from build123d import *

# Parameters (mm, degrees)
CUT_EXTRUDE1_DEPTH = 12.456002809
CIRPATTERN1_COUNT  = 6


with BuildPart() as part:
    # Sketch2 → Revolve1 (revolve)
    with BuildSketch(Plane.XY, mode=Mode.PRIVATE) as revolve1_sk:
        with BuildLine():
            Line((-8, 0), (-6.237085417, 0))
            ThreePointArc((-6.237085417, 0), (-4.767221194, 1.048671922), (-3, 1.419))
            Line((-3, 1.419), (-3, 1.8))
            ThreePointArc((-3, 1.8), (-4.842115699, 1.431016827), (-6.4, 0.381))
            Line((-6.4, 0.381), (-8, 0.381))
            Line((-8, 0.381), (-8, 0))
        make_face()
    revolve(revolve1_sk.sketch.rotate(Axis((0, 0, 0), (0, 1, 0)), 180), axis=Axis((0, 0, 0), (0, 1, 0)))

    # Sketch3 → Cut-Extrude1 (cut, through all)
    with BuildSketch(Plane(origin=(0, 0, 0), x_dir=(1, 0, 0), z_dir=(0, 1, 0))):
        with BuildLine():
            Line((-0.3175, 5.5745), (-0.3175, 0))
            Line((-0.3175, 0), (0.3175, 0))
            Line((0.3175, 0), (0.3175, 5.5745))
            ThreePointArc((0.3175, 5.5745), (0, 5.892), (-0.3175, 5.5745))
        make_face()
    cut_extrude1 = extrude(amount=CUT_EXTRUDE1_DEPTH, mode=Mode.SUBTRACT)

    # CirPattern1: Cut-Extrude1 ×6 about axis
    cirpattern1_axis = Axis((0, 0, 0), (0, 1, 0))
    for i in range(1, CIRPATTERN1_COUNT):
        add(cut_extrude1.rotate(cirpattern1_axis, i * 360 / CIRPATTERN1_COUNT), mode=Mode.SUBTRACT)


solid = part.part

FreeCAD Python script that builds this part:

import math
import FreeCAD as App
import Part
import Sketcher
Q = App.Units.Quantity

doc = App.newDocument("Part")
body = doc.addObject("PartDesign::Body", "Body")

# Sketch on XY plane
sketch1 = doc.addObject("Sketcher::SketchObject", "Sketch")
body.addObject(sketch1)
sketch1.AttachmentSupport = (doc.XY_Plane, [""])
sketch1.MapMode = "FlatFace"
sketch1.addGeometry(Part.LineSegment(App.Vector(-8, 0, 0), App.Vector(-6.24, 0, 0)), False)
sketch1.addGeometry(Part.ArcOfCircle(Part.Circle(App.Vector(-3, -2.98, 0), App.Vector(0, 0, 1), 4.4), math.radians(90), math.radians(137)), False)
sketch1.addGeometry(Part.LineSegment(App.Vector(-3, 1.42, 0), App.Vector(-3, 1.8, 0)), False)
sketch1.addGeometry(Part.ArcOfCircle(Part.Circle(App.Vector(-3, -2.98, 0), App.Vector(0, 0, 1), 4.78), math.radians(90), math.radians(135)), False)
sketch1.addGeometry(Part.LineSegment(App.Vector(-6.4, 0.38, 0), App.Vector(-8, 0.38, 0)), False)
sketch1.addGeometry(Part.LineSegment(App.Vector(-8, 0.38, 0), App.Vector(-8, 0, 0)), False)
sketch1.addConstraint(Sketcher.Constraint("Coincident", 0, 2, 1, 2))
sketch1.addConstraint(Sketcher.Constraint("Coincident", 1, 1, 2, 1))
sketch1.addConstraint(Sketcher.Constraint("Coincident", 2, 2, 3, 1))
sketch1.addConstraint(Sketcher.Constraint("Coincident", 3, 2, 4, 1))
sketch1.addConstraint(Sketcher.Constraint("Coincident", 4, 2, 5, 1))
sketch1.addConstraint(Sketcher.Constraint("Coincident", 5, 2, 0, 1))
sketch1.addConstraint(Sketcher.Constraint("Horizontal", 0))
sketch1.addConstraint(Sketcher.Constraint("Vertical", 2))
sketch1.addConstraint(Sketcher.Constraint("Horizontal", 4))
sketch1.addConstraint(Sketcher.Constraint("Vertical", 5))
sketch1.addConstraint(Sketcher.Constraint("Coincident", 3, 3, 1, 3))
sketch1.addConstraint(Sketcher.Constraint("PointOnObject", 0, 2, -1))
sketch1.addConstraint(Sketcher.Constraint("Vertical", 3, 3, 1, 1))
sketch1.addConstraint(Sketcher.Constraint("Equal", 2, 5))
sketch1.addConstraint(Sketcher.Constraint("DistanceY", 2, 1, 2, 2, Q("0.015 in")))
sketch1.addConstraint(Sketcher.Constraint("Radius", 1, 4.401791))
sketch1.addConstraint(Sketcher.Constraint("DistanceX", 4, 2, 4, 1, 1.6))
sketch1.addConstraint(Sketcher.Constraint("DistanceX", 1, 3, -1, 1, 3.0))
sketch1.addConstraint(Sketcher.Constraint("DistanceY", -1, 1, 1, 1, 1.419))
revolution = doc.addObject("PartDesign::Revolution", "Revolution")
body.addObject(revolution)
revolution.Profile = sketch1
revolution.ReferenceAxis = (sketch1, ["V_Axis"])
revolution.Angle = 360

# Sketch on XZ plane
sketch2 = doc.addObject("Sketcher::SketchObject", "Sketch001")
body.addObject(sketch2)
sketch2.AttachmentSupport = (doc.XZ_Plane, [""])
sketch2.MapMode = "FlatFace"
sketch2.addGeometry(Part.LineSegment(App.Vector(-0.32, -5.57, 0), App.Vector(-0.32, 0, 0)), False)
sketch2.addGeometry(Part.LineSegment(App.Vector(-0.32, 0, 0), App.Vector(0.32, 0, 0)), False)
sketch2.addGeometry(Part.LineSegment(App.Vector(0.32, 0, 0), App.Vector(0.32, -5.57, 0)), False)
sketch2.addGeometry(Part.ArcOfCircle(Part.Circle(App.Vector(0, -5.57, 0), App.Vector(0, 0, 1), 0.32), math.radians(180), math.radians(360)), False)
sketch2.addConstraint(Sketcher.Constraint("Coincident", 0, 2, 1, 1))
sketch2.addConstraint(Sketcher.Constraint("Coincident", 1, 2, 2, 1))
sketch2.addConstraint(Sketcher.Constraint("Tangent", 2, 2, 3, 2))
sketch2.addConstraint(Sketcher.Constraint("Tangent", 3, 1, 0, 1))
sketch2.addConstraint(Sketcher.Constraint("Vertical", 0))
sketch2.addConstraint(Sketcher.Constraint("Horizontal", 1))
sketch2.addConstraint(Sketcher.Constraint("Vertical", 2))
sketch2.addConstraint(Sketcher.Constraint("Symmetric", 0, 2, 1, 2, -1, 1))
sketch2.addConstraint(Sketcher.Constraint("Radius", 3, Q("0.0125 in")))
sketch2.addConstraint(Sketcher.Constraint("DistanceY", 0, 1, 0, 2, 5.5745))
pocket1 = doc.addObject("PartDesign::Pocket", "Pocket")
body.addObject(pocket1)
pocket1.Profile = sketch2
pocket1.Type = "ThroughAll"
doc.recompute()

polarpattern = doc.addObject("PartDesign::PolarPattern", "PolarPattern")
body.addObject(polarpattern)
polarpattern.Originals = [pocket1]
polarpattern.Axis = (doc.Y_Axis, [""])
polarpattern.Angle = 360
polarpattern.Occurrences = 6
body.Tip = polarpattern

doc.recompute()
